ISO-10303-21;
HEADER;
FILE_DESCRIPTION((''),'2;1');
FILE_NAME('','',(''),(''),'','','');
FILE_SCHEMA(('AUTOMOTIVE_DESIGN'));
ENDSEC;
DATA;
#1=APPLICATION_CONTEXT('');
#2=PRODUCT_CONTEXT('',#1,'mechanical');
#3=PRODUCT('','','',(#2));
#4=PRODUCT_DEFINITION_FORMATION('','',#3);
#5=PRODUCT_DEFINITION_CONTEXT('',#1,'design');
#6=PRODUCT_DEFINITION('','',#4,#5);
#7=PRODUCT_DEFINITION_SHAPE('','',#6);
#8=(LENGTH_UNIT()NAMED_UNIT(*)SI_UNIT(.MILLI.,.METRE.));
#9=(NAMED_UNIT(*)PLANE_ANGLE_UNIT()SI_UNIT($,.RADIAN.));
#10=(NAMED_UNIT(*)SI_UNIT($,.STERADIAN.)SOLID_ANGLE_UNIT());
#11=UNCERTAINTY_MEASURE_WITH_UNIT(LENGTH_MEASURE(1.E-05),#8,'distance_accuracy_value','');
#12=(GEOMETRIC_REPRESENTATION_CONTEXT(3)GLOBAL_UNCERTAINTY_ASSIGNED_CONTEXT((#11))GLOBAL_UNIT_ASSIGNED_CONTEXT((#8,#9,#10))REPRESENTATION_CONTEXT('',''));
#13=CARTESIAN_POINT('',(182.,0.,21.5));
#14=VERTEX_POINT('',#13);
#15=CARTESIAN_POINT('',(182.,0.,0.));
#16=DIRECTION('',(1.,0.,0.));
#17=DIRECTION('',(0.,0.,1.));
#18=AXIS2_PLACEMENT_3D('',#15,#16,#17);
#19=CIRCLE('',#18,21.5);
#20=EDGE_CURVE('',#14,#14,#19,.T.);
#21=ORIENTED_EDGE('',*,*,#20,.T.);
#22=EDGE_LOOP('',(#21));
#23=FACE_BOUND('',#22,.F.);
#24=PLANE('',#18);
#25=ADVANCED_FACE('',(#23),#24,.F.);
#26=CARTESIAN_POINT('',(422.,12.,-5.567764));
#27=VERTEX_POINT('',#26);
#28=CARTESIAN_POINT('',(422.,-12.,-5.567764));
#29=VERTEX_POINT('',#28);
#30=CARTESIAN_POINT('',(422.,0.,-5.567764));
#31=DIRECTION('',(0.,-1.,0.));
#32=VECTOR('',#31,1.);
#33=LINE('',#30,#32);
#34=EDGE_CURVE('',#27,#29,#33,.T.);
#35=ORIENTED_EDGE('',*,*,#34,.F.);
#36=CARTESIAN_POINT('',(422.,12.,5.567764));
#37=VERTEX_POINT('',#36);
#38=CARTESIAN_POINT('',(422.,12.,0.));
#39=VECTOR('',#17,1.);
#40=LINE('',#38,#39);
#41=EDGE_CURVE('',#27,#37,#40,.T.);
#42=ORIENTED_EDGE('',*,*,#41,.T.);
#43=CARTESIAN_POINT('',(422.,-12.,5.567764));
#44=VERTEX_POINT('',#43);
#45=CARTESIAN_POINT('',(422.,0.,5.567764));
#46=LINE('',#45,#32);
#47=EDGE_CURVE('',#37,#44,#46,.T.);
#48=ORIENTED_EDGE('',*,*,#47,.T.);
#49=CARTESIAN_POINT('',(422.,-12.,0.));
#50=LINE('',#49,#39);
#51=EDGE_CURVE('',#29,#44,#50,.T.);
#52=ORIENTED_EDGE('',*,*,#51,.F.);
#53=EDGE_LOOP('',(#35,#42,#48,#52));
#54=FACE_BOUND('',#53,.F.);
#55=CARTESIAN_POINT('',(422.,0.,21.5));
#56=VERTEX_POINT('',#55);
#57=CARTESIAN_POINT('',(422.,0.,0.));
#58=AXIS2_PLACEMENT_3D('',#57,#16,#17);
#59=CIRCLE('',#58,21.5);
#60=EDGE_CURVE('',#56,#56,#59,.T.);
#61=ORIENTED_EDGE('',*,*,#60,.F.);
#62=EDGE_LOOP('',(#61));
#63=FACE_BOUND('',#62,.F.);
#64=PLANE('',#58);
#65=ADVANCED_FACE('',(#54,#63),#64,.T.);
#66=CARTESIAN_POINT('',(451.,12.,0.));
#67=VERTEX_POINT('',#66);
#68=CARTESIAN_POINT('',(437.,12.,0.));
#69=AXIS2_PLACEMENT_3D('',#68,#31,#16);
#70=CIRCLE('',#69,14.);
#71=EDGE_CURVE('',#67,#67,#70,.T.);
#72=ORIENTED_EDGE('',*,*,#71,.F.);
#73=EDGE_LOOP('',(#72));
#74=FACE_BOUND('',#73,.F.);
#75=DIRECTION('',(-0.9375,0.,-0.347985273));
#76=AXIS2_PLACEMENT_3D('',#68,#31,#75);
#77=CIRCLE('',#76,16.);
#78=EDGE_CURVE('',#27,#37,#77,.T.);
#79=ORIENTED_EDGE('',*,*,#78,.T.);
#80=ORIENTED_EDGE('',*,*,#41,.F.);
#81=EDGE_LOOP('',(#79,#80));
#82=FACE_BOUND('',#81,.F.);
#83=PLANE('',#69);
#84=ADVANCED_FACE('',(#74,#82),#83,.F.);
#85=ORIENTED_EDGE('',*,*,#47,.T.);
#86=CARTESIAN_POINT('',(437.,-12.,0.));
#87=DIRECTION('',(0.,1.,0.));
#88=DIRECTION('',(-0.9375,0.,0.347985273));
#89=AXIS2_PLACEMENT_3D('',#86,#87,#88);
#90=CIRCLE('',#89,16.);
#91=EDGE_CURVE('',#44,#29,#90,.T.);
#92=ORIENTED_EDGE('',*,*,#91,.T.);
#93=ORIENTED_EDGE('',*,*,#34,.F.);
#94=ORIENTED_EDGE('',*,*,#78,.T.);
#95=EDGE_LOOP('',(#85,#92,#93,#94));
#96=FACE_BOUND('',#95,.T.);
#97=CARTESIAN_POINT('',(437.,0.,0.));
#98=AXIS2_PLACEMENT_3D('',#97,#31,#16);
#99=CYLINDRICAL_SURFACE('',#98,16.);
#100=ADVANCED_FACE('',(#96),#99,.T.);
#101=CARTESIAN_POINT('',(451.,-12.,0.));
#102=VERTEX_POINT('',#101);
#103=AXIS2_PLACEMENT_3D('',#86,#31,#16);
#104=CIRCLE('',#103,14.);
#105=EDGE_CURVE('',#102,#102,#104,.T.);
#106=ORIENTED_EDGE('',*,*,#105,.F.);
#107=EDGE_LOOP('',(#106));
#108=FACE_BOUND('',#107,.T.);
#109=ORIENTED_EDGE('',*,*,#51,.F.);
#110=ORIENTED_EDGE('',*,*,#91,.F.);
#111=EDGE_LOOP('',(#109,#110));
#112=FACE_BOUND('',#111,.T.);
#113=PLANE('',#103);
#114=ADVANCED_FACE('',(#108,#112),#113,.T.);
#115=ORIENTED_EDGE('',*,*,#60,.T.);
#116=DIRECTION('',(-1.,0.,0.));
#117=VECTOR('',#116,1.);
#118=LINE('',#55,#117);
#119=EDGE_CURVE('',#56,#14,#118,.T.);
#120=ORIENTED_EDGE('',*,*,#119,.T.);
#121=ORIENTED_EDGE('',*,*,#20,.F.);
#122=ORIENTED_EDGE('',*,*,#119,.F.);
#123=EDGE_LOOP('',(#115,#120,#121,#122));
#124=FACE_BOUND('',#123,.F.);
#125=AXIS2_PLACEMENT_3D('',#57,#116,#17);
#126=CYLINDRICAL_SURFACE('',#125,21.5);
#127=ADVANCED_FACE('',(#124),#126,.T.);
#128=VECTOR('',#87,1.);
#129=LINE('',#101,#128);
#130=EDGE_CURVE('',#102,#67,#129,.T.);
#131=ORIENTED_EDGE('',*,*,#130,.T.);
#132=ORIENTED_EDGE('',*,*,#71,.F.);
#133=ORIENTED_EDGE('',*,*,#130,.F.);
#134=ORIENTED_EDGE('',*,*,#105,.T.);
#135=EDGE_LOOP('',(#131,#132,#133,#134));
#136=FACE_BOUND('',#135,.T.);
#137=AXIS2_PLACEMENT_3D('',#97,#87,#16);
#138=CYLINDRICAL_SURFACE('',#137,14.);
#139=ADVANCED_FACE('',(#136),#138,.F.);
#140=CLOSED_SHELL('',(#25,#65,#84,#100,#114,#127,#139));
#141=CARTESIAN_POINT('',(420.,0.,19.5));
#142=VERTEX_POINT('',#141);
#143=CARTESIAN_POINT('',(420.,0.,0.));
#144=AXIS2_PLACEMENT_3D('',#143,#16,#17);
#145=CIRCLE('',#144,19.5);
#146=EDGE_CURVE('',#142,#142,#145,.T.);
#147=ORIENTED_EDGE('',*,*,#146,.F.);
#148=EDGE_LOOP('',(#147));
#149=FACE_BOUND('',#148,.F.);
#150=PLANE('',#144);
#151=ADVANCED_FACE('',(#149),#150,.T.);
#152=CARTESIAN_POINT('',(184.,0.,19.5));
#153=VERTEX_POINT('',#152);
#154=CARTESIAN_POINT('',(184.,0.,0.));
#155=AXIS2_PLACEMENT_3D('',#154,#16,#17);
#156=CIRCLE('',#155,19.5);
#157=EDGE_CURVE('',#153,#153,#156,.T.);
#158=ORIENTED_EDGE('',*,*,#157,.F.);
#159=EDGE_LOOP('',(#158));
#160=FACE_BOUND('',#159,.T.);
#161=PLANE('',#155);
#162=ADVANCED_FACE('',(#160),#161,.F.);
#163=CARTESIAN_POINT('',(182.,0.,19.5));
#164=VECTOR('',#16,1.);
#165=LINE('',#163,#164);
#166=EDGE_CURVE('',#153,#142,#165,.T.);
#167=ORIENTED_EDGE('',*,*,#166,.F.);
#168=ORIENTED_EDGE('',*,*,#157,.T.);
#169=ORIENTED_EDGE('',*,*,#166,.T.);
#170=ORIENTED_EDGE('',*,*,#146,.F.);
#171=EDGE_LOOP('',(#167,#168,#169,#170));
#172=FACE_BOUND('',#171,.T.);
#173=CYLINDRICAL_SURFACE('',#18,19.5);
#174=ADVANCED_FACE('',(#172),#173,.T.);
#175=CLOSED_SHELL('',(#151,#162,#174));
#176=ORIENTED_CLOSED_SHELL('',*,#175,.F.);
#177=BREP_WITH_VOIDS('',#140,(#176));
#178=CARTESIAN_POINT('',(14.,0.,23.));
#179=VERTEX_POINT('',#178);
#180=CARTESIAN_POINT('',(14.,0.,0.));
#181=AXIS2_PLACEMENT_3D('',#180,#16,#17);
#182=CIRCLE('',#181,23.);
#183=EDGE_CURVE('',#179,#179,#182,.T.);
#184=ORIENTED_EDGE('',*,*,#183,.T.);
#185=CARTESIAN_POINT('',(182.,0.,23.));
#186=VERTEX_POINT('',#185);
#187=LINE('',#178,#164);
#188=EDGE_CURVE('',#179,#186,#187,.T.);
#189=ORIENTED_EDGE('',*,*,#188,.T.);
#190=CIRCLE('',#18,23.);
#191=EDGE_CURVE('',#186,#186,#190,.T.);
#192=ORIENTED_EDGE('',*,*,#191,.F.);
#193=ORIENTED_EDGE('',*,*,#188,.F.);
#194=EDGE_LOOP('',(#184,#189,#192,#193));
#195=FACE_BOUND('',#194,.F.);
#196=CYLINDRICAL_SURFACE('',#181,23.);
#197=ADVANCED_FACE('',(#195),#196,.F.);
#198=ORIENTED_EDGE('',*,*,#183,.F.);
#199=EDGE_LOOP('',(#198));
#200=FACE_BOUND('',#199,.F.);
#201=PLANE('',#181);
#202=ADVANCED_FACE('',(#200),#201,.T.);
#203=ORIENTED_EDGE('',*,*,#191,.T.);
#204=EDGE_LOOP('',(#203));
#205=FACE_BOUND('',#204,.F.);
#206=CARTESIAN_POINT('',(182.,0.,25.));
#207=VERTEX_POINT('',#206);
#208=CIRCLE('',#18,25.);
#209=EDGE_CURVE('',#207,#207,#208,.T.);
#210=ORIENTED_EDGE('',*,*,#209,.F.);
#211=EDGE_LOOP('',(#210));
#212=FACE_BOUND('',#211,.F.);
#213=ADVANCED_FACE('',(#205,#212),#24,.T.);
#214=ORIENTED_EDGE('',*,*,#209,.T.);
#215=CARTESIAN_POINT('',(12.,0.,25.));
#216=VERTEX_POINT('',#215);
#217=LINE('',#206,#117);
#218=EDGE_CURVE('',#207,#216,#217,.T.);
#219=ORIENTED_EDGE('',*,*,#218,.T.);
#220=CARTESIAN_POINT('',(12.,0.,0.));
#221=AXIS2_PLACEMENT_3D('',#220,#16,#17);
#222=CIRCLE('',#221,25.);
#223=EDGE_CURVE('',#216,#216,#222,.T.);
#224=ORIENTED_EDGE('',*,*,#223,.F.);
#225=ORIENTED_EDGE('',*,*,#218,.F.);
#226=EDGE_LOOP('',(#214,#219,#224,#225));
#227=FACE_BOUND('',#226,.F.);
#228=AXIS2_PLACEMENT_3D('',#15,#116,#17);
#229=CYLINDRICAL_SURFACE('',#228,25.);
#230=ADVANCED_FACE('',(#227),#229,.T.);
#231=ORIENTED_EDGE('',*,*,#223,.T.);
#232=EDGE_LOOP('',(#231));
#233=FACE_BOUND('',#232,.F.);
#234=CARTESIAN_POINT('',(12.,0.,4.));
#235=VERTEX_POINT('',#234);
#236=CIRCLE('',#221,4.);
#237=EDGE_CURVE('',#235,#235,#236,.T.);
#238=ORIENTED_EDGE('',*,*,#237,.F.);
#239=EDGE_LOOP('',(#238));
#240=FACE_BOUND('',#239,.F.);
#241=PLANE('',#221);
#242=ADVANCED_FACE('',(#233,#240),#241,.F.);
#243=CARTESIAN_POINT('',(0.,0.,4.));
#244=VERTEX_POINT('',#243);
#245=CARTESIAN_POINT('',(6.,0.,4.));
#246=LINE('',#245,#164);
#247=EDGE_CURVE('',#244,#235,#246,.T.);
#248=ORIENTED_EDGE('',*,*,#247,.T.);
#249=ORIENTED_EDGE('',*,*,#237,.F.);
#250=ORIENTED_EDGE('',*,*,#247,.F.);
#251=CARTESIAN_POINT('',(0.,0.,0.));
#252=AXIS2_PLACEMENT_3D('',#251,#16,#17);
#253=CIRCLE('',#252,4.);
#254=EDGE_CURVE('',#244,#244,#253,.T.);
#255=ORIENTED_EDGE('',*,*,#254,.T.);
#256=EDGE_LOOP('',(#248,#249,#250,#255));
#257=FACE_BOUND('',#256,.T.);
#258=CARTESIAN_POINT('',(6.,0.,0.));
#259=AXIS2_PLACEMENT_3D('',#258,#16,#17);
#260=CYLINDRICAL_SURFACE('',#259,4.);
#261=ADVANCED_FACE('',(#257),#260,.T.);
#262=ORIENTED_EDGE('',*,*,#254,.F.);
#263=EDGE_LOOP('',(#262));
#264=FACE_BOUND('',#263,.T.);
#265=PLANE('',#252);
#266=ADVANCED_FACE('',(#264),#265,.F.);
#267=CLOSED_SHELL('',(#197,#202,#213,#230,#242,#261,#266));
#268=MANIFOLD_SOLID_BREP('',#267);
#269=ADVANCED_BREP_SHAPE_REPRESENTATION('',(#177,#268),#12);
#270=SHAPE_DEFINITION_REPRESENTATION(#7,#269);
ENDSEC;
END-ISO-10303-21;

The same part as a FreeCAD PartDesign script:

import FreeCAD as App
import Part
import Sketcher

V = App.Vector


def add_polygon(sketch, points):
    """Adds a closed chain of lines whose ends are joined by coincident constraints."""
    first, n = sketch.GeometryCount, len(points)
    for a, b in zip(points, points[1:] + points[:1]):
        sketch.addGeometry(Part.LineSegment(App.Vector(*a, 0), App.Vector(*b, 0)), False)
    for i in range(n):
        sketch.addConstraint(Sketcher.Constraint("Coincident", first + i, 2, first + (i + 1) % n, 1))

doc = App.newDocument("Part")
body = doc.addObject("PartDesign::Body", "Body")
body.AllowCompound = True

sketch1 = body.newObject("Sketcher::SketchObject", "Sketch")
sketch1.AttachmentSupport = (doc.getObject("XZ_Plane"), [""])
sketch1.MapMode = "FlatFace"
add_polygon(sketch1, [(422, 21.5), (182, 21.5), (182, 0), (184, 0), (184, 19.5), (420, 19.5), (420, 0), (422, 0)])
add_polygon(sketch1, [(0, 4), (0, 0), (14, 0), (14, 23), (182, 23), (182, 25), (12, 25), (12, 4)])
sketch1.addConstraint(Sketcher.Constraint("Horizontal", 0))
sketch1.addConstraint(Sketcher.Constraint("Vertical", 1))
sketch1.addConstraint(Sketcher.Constraint("Horizontal", 2))
sketch1.addConstraint(Sketcher.Constraint("Vertical", 3))
sketch1.addConstraint(Sketcher.Constraint("Horizontal", 4))
sketch1.addConstraint(Sketcher.Constraint("Vertical", 5))
sketch1.addConstraint(Sketcher.Constraint("Horizontal", 6))
sketch1.addConstraint(Sketcher.Constraint("Vertical", 7))
sketch1.addConstraint(Sketcher.Constraint("Vertical", 8))
sketch1.addConstraint(Sketcher.Constraint("Horizontal", 9))
sketch1.addConstraint(Sketcher.Constraint("Vertical", 10))
sketch1.addConstraint(Sketcher.Constraint("Horizontal", 11))
sketch1.addConstraint(Sketcher.Constraint("Vertical", 12))
sketch1.addConstraint(Sketcher.Constraint("Horizontal", 13))
sketch1.addConstraint(Sketcher.Constraint("Vertical", 14))
sketch1.addConstraint(Sketcher.Constraint("Horizontal", 15))
sketch1.addConstraint(Sketcher.Constraint("Coincident", 8, 2, -1, 1))
sketch1.addConstraint(Sketcher.Constraint("PointOnObject", 1, 2, -1))
sketch1.addConstraint(Sketcher.Constraint("PointOnObject", 5, 2, -1))
sketch1.addConstraint(Sketcher.Constraint("Vertical", 1, 2, 11, 2))
sketch1.addConstraint(Sketcher.Constraint("Equal", 2, 6))
sketch1.addConstraint(Sketcher.Constraint("Equal", 6, 12))
sketch1.addConstraint(Sketcher.Constraint("DistanceX", 0, 2, 0, 1, 240.0))
sketch1.addConstraint(Sketcher.Constraint("DistanceX", 2, 1, 2, 2, 2.0))
sketch1.addConstraint(Sketcher.Constraint("DistanceX", 9, 1, 9, 2, 14.0))
sketch1.addConstraint(Sketcher.Constraint("DistanceX", 11, 1, 11, 2, 168.0))
sketch1.addConstraint(Sketcher.Constraint("DistanceX", 13, 2, 13, 1, 170.0))
sketch1.addConstraint(Sketcher.Constraint("DistanceY", 8, 2, 8, 1, 4.0))
sketch1.addConstraint(Sketcher.Constraint("DistanceY", 10, 1, 10, 2, 23.0))
sketch1.addConstraint(Sketcher.Constraint("DistanceY", 1, 2, 1, 1, 21.5))
sketch1.addConstraint(Sketcher.Constraint("DistanceY", 3, 1, 3, 2, 19.5))
revolution = body.newObject("PartDesign::Revolution", "Revolution")
revolution.Profile = sketch1
revolution.ReferenceAxis = (sketch1, ["H_Axis"])
revolution.Angle = 360

sketch2 = body.newObject("Sketcher::SketchObject", "Sketch001")
sketch2.AttachmentSupport = (doc.getObject("XZ_Plane"), [""])
sketch2.MapMode = "FlatFace"
sketch2.addGeometry(Part.Circle(V(437, 0, 0), V(0, 0, 1), 16), False)
sketch2.addGeometry(Part.Circle(V(437, 0, 0), V(0, 0, 1), 14), False)
sketch2.addConstraint(Sketcher.Constraint("Coincident", 1, 3, 0, 3))
sketch2.addConstraint(Sketcher.Constraint("PointOnObject", 0, 3, -1))
sketch2.addConstraint(Sketcher.Constraint("Diameter", 0, 32.0))
sketch2.addConstraint(Sketcher.Constraint("Diameter", 1, 28.0))
sketch2.addConstraint(Sketcher.Constraint("DistanceX", -1, 1, 0, 3, 437.0))
pad1 = body.newObject("PartDesign::Pad", "Pad")
pad1.Profile = sketch2
pad1.Length = 24
pad1.Midplane = True

doc.recompute()
